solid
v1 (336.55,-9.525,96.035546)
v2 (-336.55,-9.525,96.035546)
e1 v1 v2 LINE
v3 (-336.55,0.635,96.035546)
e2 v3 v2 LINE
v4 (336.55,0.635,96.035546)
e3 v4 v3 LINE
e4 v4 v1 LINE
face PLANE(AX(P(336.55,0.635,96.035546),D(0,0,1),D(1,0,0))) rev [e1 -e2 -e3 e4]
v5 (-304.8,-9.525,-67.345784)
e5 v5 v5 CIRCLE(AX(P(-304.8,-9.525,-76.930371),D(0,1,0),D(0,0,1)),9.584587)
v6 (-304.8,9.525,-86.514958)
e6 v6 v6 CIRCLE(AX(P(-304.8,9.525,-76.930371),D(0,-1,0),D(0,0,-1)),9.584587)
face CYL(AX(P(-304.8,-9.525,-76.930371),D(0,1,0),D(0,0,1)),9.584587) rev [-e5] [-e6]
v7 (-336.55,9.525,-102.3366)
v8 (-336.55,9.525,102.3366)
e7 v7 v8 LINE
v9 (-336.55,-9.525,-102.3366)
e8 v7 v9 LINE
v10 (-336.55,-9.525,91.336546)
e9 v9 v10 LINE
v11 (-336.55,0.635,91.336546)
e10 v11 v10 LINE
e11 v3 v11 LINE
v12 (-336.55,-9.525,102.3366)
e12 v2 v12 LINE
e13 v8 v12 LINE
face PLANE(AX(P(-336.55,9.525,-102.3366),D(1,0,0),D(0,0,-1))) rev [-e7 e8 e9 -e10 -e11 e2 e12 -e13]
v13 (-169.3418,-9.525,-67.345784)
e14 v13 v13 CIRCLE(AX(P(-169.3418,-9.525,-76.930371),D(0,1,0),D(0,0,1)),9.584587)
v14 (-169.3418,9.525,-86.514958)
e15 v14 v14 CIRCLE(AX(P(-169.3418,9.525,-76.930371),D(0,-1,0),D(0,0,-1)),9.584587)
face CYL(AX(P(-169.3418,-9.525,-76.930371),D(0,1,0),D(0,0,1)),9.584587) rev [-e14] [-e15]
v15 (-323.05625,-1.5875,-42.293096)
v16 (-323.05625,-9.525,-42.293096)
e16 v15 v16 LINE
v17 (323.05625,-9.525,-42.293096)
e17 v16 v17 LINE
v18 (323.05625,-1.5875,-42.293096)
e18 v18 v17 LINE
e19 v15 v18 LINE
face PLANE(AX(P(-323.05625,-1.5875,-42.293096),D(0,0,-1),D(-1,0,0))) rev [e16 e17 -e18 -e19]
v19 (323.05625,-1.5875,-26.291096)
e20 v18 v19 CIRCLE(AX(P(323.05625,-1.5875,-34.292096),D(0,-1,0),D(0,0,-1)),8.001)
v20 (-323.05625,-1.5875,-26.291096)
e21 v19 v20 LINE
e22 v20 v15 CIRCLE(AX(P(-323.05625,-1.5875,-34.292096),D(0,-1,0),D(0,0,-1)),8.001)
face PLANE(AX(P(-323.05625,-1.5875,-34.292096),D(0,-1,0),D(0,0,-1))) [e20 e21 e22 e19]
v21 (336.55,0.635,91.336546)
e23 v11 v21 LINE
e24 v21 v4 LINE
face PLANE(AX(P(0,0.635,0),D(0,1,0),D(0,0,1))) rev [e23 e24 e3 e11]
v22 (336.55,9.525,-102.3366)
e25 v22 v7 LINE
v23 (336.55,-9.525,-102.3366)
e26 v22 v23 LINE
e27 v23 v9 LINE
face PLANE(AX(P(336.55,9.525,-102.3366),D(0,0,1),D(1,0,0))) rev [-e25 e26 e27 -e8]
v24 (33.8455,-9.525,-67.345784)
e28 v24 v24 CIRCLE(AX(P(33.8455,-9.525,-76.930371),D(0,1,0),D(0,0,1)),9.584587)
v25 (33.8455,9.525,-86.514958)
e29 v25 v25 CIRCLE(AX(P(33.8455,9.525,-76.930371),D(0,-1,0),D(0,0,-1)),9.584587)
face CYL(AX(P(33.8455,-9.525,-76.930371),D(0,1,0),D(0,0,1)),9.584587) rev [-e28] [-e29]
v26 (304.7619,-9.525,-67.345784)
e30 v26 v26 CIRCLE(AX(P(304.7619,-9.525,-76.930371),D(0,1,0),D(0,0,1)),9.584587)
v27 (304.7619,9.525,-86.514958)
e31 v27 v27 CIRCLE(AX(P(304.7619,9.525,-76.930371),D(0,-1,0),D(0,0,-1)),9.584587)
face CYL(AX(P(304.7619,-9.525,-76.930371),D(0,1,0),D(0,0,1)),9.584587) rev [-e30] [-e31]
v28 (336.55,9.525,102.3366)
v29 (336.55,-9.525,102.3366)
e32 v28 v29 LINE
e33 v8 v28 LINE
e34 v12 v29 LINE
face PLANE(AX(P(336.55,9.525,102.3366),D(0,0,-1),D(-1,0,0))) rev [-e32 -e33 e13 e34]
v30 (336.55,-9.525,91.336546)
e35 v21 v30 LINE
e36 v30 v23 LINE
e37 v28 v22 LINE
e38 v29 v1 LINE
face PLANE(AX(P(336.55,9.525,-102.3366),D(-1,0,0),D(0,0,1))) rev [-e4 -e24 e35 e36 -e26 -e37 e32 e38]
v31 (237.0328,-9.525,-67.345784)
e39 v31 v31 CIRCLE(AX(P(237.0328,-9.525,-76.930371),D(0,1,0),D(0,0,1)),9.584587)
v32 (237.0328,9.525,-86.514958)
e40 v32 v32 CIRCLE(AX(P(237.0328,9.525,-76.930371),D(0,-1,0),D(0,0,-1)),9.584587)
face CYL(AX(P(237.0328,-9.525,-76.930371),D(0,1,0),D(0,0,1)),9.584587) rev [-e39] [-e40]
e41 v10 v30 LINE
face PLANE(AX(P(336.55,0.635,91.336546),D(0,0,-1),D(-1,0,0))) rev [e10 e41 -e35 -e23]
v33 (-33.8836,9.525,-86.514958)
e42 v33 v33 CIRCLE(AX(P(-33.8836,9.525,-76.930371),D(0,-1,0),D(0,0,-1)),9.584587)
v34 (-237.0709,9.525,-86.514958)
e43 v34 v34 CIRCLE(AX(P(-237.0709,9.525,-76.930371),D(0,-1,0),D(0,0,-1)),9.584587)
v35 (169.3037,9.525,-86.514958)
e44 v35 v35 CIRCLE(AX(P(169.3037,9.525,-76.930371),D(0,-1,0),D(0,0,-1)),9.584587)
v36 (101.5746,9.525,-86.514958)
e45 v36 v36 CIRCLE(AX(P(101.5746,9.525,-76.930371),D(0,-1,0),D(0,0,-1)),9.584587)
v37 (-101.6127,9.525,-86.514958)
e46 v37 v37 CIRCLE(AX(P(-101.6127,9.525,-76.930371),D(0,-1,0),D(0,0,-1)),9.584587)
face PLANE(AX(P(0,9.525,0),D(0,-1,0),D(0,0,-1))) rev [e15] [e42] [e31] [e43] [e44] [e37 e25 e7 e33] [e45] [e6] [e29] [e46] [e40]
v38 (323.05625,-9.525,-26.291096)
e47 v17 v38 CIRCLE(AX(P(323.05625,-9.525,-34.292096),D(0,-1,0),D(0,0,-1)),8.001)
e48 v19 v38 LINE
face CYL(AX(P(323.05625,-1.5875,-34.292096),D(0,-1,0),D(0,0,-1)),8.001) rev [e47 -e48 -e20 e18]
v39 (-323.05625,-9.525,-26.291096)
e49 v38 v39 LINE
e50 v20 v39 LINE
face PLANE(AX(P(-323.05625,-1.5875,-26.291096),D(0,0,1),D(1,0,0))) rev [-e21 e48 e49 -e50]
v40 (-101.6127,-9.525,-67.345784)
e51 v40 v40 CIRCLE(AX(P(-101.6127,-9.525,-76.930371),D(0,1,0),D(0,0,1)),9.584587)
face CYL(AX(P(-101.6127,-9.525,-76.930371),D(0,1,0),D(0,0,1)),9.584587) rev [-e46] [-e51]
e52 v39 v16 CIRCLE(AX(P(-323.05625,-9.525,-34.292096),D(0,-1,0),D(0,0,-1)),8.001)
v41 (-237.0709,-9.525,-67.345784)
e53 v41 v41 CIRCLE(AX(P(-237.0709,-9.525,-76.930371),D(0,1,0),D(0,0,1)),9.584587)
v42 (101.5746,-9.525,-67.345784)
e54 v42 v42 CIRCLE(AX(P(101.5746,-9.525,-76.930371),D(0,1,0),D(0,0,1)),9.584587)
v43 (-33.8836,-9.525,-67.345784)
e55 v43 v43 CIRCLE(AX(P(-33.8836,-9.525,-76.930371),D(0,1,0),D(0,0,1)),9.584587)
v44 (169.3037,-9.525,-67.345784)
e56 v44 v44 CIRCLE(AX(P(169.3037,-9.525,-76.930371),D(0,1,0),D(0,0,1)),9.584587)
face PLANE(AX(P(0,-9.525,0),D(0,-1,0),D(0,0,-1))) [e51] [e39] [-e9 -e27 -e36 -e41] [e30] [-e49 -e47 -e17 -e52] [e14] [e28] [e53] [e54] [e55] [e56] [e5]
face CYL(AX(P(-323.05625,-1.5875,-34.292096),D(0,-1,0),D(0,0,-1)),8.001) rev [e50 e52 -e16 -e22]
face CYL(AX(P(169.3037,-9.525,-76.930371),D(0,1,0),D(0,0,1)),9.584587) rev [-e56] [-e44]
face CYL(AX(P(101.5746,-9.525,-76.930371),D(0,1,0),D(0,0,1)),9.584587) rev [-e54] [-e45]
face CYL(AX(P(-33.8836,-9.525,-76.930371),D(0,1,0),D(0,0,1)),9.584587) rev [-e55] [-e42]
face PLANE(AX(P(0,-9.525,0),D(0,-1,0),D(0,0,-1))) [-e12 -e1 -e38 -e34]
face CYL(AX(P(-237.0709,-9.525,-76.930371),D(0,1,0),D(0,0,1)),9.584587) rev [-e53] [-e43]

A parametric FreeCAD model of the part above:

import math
import FreeCAD as App
import Part
import Sketcher
Q = App.Units.Quantity


def add_polygon(sketch, points):
    """Adds a closed chain of lines whose ends are joined by coincident constraints."""
    first, n = sketch.GeometryCount, len(points)
    for a, b in zip(points, points[1:] + points[:1]):
        sketch.addGeometry(Part.LineSegment(App.Vector(*a, 0), App.Vector(*b, 0)), False)
    for i in range(n):
        sketch.addConstraint(Sketcher.Constraint("Coincident", first + i, 2, first + (i + 1) % n, 1))

doc = App.newDocument("Part")
body = doc.addObject("PartDesign::Body", "Body")

# Sketch on XZ plane
sketch1 = doc.addObject("Sketcher::SketchObject", "Sketch")
body.addObject(sketch1)
sketch1.AttachmentSupport = (doc.XZ_Plane, [""])
sketch1.MapMode = "FlatFace"
add_polygon(sketch1, [(-337, -102), (-337, 102), (337, 102), (337, -102)])  # lines 0-3
sketch1.addConstraint([
    Sketcher.Constraint("Vertical", 0),
    Sketcher.Constraint("Horizontal", 1),
    Sketcher.Constraint("Vertical", 2),
    Sketcher.Constraint("Horizontal", 3),
    Sketcher.Constraint("Symmetric", 0, 2, 2, 2, -1, 1),
    Sketcher.Constraint("DistanceX", 1, 1, 1, 2, Q("26.5 in")),
    Sketcher.Constraint("DistanceY", 0, 1, 0, 2, Q("8.058 in")),
])
pad1 = doc.addObject("PartDesign::Pad", "Pad")
body.addObject(pad1)
pad1.Profile = sketch1
pad1.Length = Q("0.75 in")
pad1.Midplane = True

# Sketch on XZ plane
sketch2 = doc.addObject("Sketcher::SketchObject", "Sketch001")
body.addObject(sketch2)
sketch2.AttachmentSupport = (doc.XZ_Plane, [""])
sketch2.MapMode = "FlatFace"
sketch2.AttachmentOffset = App.Placement(App.Vector(0, 0, -0.375 * 25.4), App.Rotation())
sketch2.addGeometry([
    Part.Circle(App.Vector(-305, -77, 0), App.Vector(0, 0, 1), 10),  # 0
    Part.Circle(App.Vector(-237, -77, 0), App.Vector(0, 0, 1), 10),  # 1
    Part.Circle(App.Vector(-169, -77, 0), App.Vector(0, 0, 1), 10),  # 2
    Part.Circle(App.Vector(-102, -77, 0), App.Vector(0, 0, 1), 10),  # 3
    Part.Circle(App.Vector(-34, -77, 0), App.Vector(0, 0, 1), 10),  # 4
    Part.Circle(App.Vector(34, -77, 0), App.Vector(0, 0, 1), 10),  # 5
    Part.Circle(App.Vector(102, -77, 0), App.Vector(0, 0, 1), 10),  # 6
    Part.Circle(App.Vector(169, -77, 0), App.Vector(0, 0, 1), 10),  # 7
    Part.Circle(App.Vector(237, -77, 0), App.Vector(0, 0, 1), 10),  # 8
    Part.Circle(App.Vector(305, -77, 0), App.Vector(0, 0, 1), 10),  # 9
], False)
sketch2.addConstraint([
    Sketcher.Constraint("Equal", 0, 1),
    Sketcher.Constraint("Equal", 1, 2),
    Sketcher.Constraint("Equal", 2, 3),
    Sketcher.Constraint("Equal", 3, 4),
    Sketcher.Constraint("Equal", 4, 5),
    Sketcher.Constraint("Equal", 5, 6),
    Sketcher.Constraint("Equal", 6, 7),
    Sketcher.Constraint("Equal", 7, 8),
    Sketcher.Constraint("Equal", 8, 9),
    Sketcher.Constraint("Horizontal", 0, 3, 1, 3),
    Sketcher.Constraint("Horizontal", 1, 3, 2, 3),
    Sketcher.Constraint("Horizontal", 2, 3, 3, 3),
    Sketcher.Constraint("Horizontal", 3, 3, 4, 3),
    Sketcher.Constraint("Horizontal", 4, 3, 5, 3),
    Sketcher.Constraint("Horizontal", 5, 3, 6, 3),
    Sketcher.Constraint("Horizontal", 6, 3, 7, 3),
    Sketcher.Constraint("Horizontal", 7, 3, 8, 3),
    Sketcher.Constraint("Horizontal", 8, 3, 9, 3),
    Sketcher.Constraint("DistanceX", 0, 3, -1, 1, Q("12 in")),
    Sketcher.Constraint("DistanceX", 2, 3, -1, 1, Q("6.667 in")),
    Sketcher.Constraint("DistanceX", 4, 3, -1, 1, Q("1.334 in")),
    Sketcher.Constraint("DistanceX", -1, 1, 6, 3, Q("3.999 in")),
    Sketcher.Constraint("DistanceX", -1, 1, 8, 3, Q("9.332 in")),
    Sketcher.Constraint("DistanceX", 1, 3, 3, 3, Q("5.333 in")),
    Sketcher.Constraint("DistanceX", 3, 3, 5, 3, Q("5.333 in")),
    Sketcher.Constraint("DistanceX", 5, 3, 7, 3, Q("5.333 in")),
    Sketcher.Constraint("DistanceX", 7, 3, 9, 3, Q("5.333 in")),
    Sketcher.Constraint("Diameter", 0, 19.169174),
    Sketcher.Constraint("DistanceX", 1, 3, -1, 1, Q("9.3335 in")),
    Sketcher.Constraint("DistanceY", 0, 3, -1, 1, 76.930371),
])
pocket1 = doc.addObject("PartDesign::Pocket", "Pocket")
body.addObject(pocket1)
pocket1.Profile = sketch2
pocket1.Type = "ThroughAll"
pocket1.Midplane = True

# Sketch on XZ plane
sketch3 = doc.addObject("Sketcher::SketchObject", "Sketch002")
body.addObject(sketch3)
sketch3.AttachmentSupport = (doc.XZ_Plane, [""])
sketch3.MapMode = "FlatFace"
sketch3.AttachmentOffset = App.Placement(App.Vector(0, 0, 0.375 * 25.4), App.Rotation())
add_polygon(sketch3, [(-336.6, 96), (-336.6, 91.3), (336.6, 91.3), (336.6, 96)])  # lines 0-3
sketch3.addConstraint([
    Sketcher.Constraint("Vertical", 0),
    Sketcher.Constraint("Horizontal", 1),
    Sketcher.Constraint("Vertical", 2),
    Sketcher.Constraint("Horizontal", 3),
    Sketcher.Constraint("DistanceX", 1, 1, 1, 2, Q("26.5 in")),
    Sketcher.Constraint("DistanceY", 0, 2, 0, 1, Q("0.185 in")),
    Sketcher.Constraint("DistanceX", 0, 2, -1, 1, Q("13.25 in")),
    Sketcher.Constraint("DistanceY", -1, 1, 0, 2, 91.336546),
])
pocket2 = doc.addObject("PartDesign::Pocket", "Pocket001")
body.addObject(pocket2)
pocket2.Profile = sketch3
pocket2.Length = Q("0.4 in")

# Sketch on XZ plane
sketch4 = doc.addObject("Sketcher::SketchObject", "Sketch003")
body.addObject(sketch4)
sketch4.AttachmentSupport = (doc.XZ_Plane, [""])
sketch4.MapMode = "FlatFace"
sketch4.AttachmentOffset = App.Placement(App.Vector(0, 0, 0.375 * 25.4), App.Rotation())
sketch4.addGeometry([
    Part.LineSegment(App.Vector(323, -26, 0), App.Vector(-323, -26, 0)),
    Part.ArcOfCircle(Part.Circle(App.Vector(-323, -34, 0), App.Vector(0, 0, 1), 8), math.radians(90), math.radians(270)),
    Part.LineSegment(App.Vector(-323, -42, 0), App.Vector(323, -42, 0)),
    Part.ArcOfCircle(Part.Circle(App.Vector(323, -34, 0), App.Vector(0, 0, 1), 8), math.radians(-90), math.radians(90)),
], False)
sketch4.addConstraint([
    Sketcher.Constraint("Tangent", 0, 2, 1, 1),
    Sketcher.Constraint("Tangent", 1, 2, 2, 1),
    Sketcher.Constraint("Tangent", 2, 2, 3, 1),
    Sketcher.Constraint("Tangent", 3, 2, 0, 1),
    Sketcher.Constraint("Horizontal", 0),
    Sketcher.Constraint("Horizontal", 2),
    Sketcher.Constraint("Radius", 1, Q("0.315 in")),
    Sketcher.Constraint("DistanceX", 0, 2, 0, 1, Q("25.4375 in")),
    Sketcher.Constraint("DistanceX", 1, 3, -1, 1, Q("12.71875 in")),
    Sketcher.Constraint("DistanceY", 1, 3, -1, 1, 34.292096),
])
pocket3 = doc.addObject("PartDesign::Pocket", "Pocket002")
body.addObject(pocket3)
pocket3.Profile = sketch4
pocket3.Length = Q("0.3125 in")

doc.recompute()
